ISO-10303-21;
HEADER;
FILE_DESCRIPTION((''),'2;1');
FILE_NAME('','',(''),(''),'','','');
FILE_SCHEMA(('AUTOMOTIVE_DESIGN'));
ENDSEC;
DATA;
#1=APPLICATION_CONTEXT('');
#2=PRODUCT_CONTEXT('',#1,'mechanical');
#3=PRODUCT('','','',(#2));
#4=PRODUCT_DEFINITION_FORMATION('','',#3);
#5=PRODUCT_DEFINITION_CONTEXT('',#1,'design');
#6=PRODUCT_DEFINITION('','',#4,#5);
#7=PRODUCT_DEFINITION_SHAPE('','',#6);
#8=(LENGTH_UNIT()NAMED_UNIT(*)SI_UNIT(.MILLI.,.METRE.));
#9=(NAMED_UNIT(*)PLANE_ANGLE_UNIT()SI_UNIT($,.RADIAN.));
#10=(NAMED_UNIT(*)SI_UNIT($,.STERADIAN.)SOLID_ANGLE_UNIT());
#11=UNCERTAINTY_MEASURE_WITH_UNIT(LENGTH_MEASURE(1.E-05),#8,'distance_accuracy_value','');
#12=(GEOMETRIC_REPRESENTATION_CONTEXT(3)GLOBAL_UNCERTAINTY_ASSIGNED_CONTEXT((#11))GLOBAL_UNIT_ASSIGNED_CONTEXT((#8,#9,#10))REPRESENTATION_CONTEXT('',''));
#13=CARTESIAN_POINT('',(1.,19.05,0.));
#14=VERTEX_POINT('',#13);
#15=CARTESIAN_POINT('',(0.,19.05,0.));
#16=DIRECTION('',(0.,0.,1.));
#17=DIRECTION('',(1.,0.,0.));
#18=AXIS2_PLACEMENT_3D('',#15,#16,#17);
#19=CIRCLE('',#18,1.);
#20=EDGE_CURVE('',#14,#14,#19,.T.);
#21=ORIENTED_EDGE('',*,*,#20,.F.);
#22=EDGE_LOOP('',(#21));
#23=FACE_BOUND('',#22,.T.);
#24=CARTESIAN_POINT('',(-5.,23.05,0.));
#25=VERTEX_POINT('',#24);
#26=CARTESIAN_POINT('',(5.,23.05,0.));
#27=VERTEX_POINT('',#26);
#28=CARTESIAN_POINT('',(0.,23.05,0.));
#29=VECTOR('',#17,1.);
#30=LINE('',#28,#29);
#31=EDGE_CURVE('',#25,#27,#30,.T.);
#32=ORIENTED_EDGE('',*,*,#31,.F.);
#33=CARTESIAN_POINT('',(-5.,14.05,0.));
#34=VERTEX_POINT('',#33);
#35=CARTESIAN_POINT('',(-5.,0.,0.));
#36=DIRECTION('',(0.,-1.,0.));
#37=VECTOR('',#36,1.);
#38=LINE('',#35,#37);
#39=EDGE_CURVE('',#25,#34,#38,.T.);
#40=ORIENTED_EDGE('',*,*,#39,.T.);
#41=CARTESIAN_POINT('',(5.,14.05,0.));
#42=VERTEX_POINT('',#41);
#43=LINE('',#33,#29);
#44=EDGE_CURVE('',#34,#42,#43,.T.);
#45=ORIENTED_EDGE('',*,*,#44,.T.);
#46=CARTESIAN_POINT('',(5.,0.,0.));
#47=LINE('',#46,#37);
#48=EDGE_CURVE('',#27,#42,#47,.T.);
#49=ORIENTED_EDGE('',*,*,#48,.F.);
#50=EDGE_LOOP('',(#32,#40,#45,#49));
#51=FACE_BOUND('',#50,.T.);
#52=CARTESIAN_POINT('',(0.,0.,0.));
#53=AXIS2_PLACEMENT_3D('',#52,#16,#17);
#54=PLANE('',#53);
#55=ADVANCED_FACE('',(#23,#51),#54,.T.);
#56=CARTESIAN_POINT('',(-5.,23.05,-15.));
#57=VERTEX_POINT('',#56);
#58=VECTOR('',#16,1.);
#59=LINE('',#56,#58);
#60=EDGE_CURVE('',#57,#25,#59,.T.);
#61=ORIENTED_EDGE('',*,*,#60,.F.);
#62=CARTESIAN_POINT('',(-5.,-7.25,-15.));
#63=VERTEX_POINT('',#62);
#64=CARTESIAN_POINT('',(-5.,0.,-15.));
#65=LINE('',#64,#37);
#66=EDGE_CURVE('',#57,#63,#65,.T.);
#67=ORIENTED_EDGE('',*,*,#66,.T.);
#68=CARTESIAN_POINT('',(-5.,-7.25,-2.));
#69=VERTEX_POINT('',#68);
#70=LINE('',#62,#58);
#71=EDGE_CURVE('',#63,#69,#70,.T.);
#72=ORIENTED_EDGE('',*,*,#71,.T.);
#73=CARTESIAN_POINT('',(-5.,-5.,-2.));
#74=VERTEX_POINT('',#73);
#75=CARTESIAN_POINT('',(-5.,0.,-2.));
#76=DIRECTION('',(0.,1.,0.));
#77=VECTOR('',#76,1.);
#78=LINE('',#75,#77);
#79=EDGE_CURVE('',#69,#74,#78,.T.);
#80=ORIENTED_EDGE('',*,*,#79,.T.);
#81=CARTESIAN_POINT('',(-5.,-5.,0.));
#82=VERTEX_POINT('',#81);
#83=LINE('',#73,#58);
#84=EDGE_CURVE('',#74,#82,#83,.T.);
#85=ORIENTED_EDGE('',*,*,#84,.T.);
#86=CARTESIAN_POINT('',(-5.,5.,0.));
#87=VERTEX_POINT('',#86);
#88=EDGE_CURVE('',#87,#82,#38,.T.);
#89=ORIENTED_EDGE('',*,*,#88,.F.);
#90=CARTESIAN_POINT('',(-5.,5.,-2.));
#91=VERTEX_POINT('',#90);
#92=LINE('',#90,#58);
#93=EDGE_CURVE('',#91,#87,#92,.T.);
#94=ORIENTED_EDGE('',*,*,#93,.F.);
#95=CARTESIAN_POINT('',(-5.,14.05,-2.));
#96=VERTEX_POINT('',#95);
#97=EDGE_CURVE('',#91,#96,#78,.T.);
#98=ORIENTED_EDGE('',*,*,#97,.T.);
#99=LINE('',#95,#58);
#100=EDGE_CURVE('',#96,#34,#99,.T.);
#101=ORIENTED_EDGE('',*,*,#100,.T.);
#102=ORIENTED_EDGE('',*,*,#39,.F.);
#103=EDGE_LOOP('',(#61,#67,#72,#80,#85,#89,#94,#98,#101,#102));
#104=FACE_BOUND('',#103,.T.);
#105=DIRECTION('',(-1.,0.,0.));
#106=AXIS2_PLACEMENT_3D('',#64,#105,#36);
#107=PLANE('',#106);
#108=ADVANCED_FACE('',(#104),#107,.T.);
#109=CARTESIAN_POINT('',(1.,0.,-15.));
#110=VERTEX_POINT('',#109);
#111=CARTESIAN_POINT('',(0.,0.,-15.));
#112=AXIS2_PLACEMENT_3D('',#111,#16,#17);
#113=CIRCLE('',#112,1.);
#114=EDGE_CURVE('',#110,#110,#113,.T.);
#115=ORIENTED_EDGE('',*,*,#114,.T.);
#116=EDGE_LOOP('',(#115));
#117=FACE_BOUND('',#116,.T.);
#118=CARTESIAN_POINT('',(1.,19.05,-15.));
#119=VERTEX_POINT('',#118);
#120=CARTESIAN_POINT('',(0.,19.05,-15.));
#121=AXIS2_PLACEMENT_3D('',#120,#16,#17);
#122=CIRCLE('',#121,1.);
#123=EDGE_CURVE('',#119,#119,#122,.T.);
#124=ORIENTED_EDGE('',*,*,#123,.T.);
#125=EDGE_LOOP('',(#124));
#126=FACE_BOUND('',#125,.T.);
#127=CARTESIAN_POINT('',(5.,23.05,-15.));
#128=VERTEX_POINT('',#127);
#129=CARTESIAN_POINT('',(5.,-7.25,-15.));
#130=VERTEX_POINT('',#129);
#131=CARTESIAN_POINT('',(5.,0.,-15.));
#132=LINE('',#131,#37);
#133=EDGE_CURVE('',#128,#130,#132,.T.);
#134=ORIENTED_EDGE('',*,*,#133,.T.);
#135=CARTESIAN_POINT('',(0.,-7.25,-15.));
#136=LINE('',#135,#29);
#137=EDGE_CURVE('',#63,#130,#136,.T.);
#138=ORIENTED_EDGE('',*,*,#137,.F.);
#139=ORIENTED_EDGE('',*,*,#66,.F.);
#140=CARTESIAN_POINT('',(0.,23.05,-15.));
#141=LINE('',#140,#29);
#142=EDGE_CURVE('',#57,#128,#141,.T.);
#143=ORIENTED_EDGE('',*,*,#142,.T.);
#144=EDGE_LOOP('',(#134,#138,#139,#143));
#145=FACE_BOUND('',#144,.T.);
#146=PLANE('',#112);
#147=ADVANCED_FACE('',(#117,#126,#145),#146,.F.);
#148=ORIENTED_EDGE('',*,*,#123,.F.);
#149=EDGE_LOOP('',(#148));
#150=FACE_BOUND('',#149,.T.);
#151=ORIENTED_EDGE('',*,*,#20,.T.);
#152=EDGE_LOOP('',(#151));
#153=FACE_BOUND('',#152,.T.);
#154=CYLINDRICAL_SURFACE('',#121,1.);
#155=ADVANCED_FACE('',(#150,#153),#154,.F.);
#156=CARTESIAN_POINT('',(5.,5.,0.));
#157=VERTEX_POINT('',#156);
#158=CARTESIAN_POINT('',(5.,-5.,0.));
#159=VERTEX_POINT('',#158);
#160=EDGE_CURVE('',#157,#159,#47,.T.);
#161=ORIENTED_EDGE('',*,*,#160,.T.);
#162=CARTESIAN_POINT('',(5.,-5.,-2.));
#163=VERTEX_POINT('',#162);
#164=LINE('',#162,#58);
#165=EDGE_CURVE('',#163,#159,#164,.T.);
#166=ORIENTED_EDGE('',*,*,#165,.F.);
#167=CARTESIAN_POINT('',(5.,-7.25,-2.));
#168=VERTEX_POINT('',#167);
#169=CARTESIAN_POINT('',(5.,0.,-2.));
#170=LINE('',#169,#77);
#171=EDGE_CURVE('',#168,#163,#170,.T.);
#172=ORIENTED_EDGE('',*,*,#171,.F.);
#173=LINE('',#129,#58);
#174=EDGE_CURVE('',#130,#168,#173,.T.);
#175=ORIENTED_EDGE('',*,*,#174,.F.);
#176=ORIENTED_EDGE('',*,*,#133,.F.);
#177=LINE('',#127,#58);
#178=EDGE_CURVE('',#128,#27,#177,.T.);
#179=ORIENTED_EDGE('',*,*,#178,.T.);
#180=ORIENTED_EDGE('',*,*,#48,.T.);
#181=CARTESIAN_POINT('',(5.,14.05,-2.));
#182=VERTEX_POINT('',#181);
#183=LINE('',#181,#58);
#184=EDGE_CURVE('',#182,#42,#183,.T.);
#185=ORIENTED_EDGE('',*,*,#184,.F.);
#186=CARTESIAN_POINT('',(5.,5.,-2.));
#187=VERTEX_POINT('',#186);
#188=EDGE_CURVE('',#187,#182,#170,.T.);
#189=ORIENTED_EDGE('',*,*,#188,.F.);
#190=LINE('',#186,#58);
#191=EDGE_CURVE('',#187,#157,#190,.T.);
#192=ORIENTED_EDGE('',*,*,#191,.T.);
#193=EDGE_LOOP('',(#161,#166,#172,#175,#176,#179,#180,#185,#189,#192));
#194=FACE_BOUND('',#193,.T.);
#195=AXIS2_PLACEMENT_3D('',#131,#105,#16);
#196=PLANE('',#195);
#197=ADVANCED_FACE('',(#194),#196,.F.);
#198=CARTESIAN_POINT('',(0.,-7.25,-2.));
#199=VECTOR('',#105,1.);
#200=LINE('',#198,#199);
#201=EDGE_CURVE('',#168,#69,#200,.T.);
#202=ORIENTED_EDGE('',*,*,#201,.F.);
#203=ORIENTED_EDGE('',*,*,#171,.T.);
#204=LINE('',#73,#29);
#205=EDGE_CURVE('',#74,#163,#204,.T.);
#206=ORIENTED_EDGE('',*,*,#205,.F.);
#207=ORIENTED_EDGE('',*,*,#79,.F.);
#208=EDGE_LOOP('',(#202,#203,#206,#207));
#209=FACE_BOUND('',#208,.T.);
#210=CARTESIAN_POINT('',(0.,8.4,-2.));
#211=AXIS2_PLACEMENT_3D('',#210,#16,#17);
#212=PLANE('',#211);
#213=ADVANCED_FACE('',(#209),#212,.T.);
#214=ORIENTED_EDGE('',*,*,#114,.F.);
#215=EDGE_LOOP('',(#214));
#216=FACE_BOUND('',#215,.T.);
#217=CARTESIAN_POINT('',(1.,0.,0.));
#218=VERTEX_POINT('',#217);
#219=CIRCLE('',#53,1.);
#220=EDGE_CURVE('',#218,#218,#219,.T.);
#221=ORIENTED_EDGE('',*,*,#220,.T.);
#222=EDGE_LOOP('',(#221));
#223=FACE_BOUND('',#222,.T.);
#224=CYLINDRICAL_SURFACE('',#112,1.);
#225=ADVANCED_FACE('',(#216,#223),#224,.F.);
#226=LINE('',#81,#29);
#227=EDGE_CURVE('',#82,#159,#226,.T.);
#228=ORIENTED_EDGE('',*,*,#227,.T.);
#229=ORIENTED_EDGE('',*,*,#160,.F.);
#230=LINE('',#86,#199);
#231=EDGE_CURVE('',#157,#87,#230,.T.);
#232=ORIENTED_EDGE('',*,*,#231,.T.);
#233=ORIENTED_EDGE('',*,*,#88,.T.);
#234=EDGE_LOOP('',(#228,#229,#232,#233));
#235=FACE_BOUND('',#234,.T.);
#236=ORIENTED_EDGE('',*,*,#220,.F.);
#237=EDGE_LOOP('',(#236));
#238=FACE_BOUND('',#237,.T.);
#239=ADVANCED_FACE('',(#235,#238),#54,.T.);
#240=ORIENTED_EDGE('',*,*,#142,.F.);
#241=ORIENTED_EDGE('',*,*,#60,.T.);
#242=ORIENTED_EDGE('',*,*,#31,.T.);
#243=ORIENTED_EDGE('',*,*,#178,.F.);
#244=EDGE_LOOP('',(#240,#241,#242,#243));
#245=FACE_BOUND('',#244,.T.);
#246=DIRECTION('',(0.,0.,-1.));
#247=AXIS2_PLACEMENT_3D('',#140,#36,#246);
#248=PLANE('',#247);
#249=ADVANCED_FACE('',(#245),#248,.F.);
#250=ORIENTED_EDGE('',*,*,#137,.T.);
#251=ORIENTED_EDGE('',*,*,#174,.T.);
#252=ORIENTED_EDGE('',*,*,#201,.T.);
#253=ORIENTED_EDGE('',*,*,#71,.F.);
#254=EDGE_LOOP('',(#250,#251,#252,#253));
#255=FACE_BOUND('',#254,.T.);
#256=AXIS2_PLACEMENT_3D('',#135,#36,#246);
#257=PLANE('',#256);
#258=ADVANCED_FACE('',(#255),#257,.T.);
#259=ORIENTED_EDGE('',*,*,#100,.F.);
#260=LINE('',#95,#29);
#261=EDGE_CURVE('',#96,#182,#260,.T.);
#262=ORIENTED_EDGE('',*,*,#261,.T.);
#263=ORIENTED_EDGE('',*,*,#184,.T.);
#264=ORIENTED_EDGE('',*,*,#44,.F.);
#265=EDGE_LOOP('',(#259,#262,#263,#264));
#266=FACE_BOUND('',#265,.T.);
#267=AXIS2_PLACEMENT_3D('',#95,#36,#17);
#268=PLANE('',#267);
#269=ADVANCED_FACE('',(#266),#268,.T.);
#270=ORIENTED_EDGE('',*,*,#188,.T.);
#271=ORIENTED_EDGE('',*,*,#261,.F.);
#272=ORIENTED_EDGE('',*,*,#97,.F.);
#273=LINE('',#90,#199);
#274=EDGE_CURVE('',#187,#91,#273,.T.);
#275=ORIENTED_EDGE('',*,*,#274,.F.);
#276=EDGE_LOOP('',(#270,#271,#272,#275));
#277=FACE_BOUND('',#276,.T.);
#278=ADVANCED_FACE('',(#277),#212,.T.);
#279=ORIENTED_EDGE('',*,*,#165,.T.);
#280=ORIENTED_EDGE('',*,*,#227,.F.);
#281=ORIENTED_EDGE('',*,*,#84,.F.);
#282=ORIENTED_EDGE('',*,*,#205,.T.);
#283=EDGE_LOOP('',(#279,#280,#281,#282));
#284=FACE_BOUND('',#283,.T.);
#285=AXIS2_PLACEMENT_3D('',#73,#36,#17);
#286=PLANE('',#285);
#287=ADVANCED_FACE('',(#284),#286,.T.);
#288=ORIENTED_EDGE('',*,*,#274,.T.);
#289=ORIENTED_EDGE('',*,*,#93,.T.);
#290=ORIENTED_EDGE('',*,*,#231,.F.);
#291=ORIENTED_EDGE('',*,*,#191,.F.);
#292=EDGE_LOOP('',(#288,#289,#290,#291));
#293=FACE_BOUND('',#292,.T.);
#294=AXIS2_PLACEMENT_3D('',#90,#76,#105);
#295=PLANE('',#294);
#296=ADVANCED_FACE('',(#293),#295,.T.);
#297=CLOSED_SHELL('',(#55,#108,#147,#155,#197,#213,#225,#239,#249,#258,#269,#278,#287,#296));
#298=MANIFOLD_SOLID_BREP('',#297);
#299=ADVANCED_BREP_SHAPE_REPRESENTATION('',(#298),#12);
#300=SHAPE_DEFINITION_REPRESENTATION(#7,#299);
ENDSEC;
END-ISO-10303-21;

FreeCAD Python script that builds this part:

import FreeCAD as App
import Part
import Sketcher
from FreeCAD import Vector

doc = App.newDocument("Part")
params = doc.addObject("Spreadsheet::Sheet", "Params")
for row, (alias, value) in enumerate([
    ("sketch1_diameter", "2 mm"),
    ("sketch1_width", "10 mm"),
    ("sketch1_height", "30.3 mm"),
    ("pad1_length", "15 mm"),
    ("sketch2_width", "10 mm"),
    ("pocket1_length", "2 mm"),
], start=1):
    params.set(f"A{row}", alias)
    params.set(f"B{row}", "=" + value)
    params.setAlias(f"B{row}", alias)

body = doc.addObject("PartDesign::Body", "Body")

sketch1 = doc.addObject("Sketcher::SketchObject", "Sketch")
body.addObject(sketch1)
sketch1.AttachmentSupport = (doc.XY_Plane, [""])
sketch1.MapMode = "FlatFace"
sketch1.addGeometry([
    Part.LineSegment(Vector(-5, 23.1, 0), Vector(-5, -7.2, 0)),
    Part.LineSegment(Vector(-5, -7.2, 0), Vector(5, -7.2, 0)),
    Part.LineSegment(Vector(5, -7.2, 0), Vector(5, 23.1, 0)),
    Part.LineSegment(Vector(5, 23.1, 0), Vector(-5, 23.1, 0)),
    Part.Circle(Vector(0, 0, 0), Vector(0, 0, 1), 1),
    Part.Circle(Vector(0, 19.1, 0), Vector(0, 0, 1), 1),
], False)
sketch1.addConstraint([
    Sketcher.Constraint("Coincident", 0, 2, 1, 1),
    Sketcher.Constraint("Coincident", 1, 2, 2, 1),
    Sketcher.Constraint("Coincident", 2, 2, 3, 1),
    Sketcher.Constraint("Coincident", 3, 2, 0, 1),
    Sketcher.Constraint("Vertical", 0),
    Sketcher.Constraint("Horizontal", 1),
    Sketcher.Constraint("Vertical", 2),
    Sketcher.Constraint("Horizontal", 3),
    Sketcher.Constraint("Coincident", 4, 3, -1, 1),
    Sketcher.Constraint("Equal", 4, 5),
    Sketcher.Constraint("PointOnObject", 5, 3, -2),
    Sketcher.Constraint("Diameter", 4, 2.0),
    Sketcher.Constraint("DistanceX", 1, 1, 1, 2, 10.0),
    Sketcher.Constraint("DistanceY", 0, 2, 0, 1, 30.3),
    Sketcher.Constraint("DistanceX", 0, 2, -1, 1, 5.0),
    Sketcher.Constraint("DistanceY", 5, 3, 2, 2, 4.0),
    Sketcher.Constraint("DistanceY", -1, 1, 5, 3, 19.05),
])
sketch1.setExpression("Constraints[11]", "Params.sketch1_diameter")
sketch1.setExpression("Constraints[12]", "Params.sketch1_width")
sketch1.setExpression("Constraints[13]", "Params.sketch1_height")
pad1 = doc.addObject("PartDesign::Pad", "Pad")
body.addObject(pad1)
pad1.Profile = sketch1
pad1.setExpression("Length", "Params.pad1_length")
pad1.Reversed = True

sketch2 = doc.addObject("Sketcher::SketchObject", "Sketch001")
body.addObject(sketch2)
sketch2.AttachmentSupport = (doc.XY_Plane, [""])
sketch2.MapMode = "FlatFace"
sketch2.addGeometry([
    Part.LineSegment(Vector(-10, 28, 0), Vector(-10, -12, 0)),
    Part.LineSegment(Vector(-10, -12, 0), Vector(10, -12, 0)),
    Part.LineSegment(Vector(10, -12, 0), Vector(10, 28, 0)),
    Part.LineSegment(Vector(10, 28, 0), Vector(-10, 28, 0)),
    Part.LineSegment(Vector(5, -5, 0), Vector(-5, -5, 0)),
    Part.LineSegment(Vector(-5, -5, 0), Vector(-5, 5, 0)),
    Part.LineSegment(Vector(-5, 5, 0), Vector(5, 5, 0)),
    Part.LineSegment(Vector(5, 5, 0), Vector(5, -5, 0)),
    Part.LineSegment(Vector(5, 14, 0), Vector(-5, 14, 0)),
    Part.LineSegment(Vector(-5, 14, 0), Vector(-5, 24, 0)),
    Part.LineSegment(Vector(-5, 24, 0), Vector(5, 24, 0)),
    Part.LineSegment(Vector(5, 24, 0), Vector(5, 14, 0)),
], False)
sketch2.addConstraint([
    Sketcher.Constraint("Coincident", 0, 2, 1, 1),
    Sketcher.Constraint("Coincident", 1, 2, 2, 1),
    Sketcher.Constraint("Coincident", 2, 2, 3, 1),
    Sketcher.Constraint("Coincident", 3, 2, 0, 1),
    Sketcher.Constraint("Coincident", 4, 2, 5, 1),
    Sketcher.Constraint("Coincident", 5, 2, 6, 1),
    Sketcher.Constraint("Coincident", 6, 2, 7, 1),
    Sketcher.Constraint("Coincident", 7, 2, 4, 1),
    Sketcher.Constraint("Coincident", 8, 2, 9, 1),
    Sketcher.Constraint("Coincident", 9, 2, 10, 1),
    Sketcher.Constraint("Coincident", 10, 2, 11, 1),
    Sketcher.Constraint("Coincident", 11, 2, 8, 1),
    Sketcher.Constraint("Vertical", 0),
    Sketcher.Constraint("Horizontal", 1),
    Sketcher.Constraint("Vertical", 2),
    Sketcher.Constraint("Horizontal", 3),
    Sketcher.Constraint("Horizontal", 4),
    Sketcher.Constraint("Vertical", 5),
    Sketcher.Constraint("Horizontal", 6),
    Sketcher.Constraint("Vertical", 7),
    Sketcher.Constraint("Horizontal", 8),
    Sketcher.Constraint("Vertical", 9),
    Sketcher.Constraint("Horizontal", 10),
    Sketcher.Constraint("Vertical", 11),
    Sketcher.Constraint("Symmetric", 4, 2, 6, 2, -1, 1),
    Sketcher.Constraint("Vertical", 5, 2, 8, 2),
    Sketcher.Constraint("Vertical", 7, 2, 10, 2),
    Sketcher.Constraint("Equal", 10, 5),
    Sketcher.Constraint("Equal", 7, 9),
    Sketcher.Constraint("DistanceX", 4, 2, 4, 1, 10.0),
    Sketcher.Constraint("DistanceX", 1, 1, 1, 2, 19.052),
    Sketcher.Constraint("DistanceY", 0, 2, 0, 1, 39.352),
    Sketcher.Constraint("DistanceY", -1, 1, 8, 2, 14.05),
    Sketcher.Constraint("DistanceX", 0, 2, -1, 1, 9.526),
    Sketcher.Constraint("DistanceY", 0, 2, -1, 1, 11.776),
])
sketch2.setExpression("Constraints[29]", "Params.sketch2_width")
pocket1 = doc.addObject("PartDesign::Pocket", "Pocket")
body.addObject(pocket1)
pocket1.Profile = sketch2
pocket1.setExpression("Length", "Params.pocket1_length")

doc.recompute()
